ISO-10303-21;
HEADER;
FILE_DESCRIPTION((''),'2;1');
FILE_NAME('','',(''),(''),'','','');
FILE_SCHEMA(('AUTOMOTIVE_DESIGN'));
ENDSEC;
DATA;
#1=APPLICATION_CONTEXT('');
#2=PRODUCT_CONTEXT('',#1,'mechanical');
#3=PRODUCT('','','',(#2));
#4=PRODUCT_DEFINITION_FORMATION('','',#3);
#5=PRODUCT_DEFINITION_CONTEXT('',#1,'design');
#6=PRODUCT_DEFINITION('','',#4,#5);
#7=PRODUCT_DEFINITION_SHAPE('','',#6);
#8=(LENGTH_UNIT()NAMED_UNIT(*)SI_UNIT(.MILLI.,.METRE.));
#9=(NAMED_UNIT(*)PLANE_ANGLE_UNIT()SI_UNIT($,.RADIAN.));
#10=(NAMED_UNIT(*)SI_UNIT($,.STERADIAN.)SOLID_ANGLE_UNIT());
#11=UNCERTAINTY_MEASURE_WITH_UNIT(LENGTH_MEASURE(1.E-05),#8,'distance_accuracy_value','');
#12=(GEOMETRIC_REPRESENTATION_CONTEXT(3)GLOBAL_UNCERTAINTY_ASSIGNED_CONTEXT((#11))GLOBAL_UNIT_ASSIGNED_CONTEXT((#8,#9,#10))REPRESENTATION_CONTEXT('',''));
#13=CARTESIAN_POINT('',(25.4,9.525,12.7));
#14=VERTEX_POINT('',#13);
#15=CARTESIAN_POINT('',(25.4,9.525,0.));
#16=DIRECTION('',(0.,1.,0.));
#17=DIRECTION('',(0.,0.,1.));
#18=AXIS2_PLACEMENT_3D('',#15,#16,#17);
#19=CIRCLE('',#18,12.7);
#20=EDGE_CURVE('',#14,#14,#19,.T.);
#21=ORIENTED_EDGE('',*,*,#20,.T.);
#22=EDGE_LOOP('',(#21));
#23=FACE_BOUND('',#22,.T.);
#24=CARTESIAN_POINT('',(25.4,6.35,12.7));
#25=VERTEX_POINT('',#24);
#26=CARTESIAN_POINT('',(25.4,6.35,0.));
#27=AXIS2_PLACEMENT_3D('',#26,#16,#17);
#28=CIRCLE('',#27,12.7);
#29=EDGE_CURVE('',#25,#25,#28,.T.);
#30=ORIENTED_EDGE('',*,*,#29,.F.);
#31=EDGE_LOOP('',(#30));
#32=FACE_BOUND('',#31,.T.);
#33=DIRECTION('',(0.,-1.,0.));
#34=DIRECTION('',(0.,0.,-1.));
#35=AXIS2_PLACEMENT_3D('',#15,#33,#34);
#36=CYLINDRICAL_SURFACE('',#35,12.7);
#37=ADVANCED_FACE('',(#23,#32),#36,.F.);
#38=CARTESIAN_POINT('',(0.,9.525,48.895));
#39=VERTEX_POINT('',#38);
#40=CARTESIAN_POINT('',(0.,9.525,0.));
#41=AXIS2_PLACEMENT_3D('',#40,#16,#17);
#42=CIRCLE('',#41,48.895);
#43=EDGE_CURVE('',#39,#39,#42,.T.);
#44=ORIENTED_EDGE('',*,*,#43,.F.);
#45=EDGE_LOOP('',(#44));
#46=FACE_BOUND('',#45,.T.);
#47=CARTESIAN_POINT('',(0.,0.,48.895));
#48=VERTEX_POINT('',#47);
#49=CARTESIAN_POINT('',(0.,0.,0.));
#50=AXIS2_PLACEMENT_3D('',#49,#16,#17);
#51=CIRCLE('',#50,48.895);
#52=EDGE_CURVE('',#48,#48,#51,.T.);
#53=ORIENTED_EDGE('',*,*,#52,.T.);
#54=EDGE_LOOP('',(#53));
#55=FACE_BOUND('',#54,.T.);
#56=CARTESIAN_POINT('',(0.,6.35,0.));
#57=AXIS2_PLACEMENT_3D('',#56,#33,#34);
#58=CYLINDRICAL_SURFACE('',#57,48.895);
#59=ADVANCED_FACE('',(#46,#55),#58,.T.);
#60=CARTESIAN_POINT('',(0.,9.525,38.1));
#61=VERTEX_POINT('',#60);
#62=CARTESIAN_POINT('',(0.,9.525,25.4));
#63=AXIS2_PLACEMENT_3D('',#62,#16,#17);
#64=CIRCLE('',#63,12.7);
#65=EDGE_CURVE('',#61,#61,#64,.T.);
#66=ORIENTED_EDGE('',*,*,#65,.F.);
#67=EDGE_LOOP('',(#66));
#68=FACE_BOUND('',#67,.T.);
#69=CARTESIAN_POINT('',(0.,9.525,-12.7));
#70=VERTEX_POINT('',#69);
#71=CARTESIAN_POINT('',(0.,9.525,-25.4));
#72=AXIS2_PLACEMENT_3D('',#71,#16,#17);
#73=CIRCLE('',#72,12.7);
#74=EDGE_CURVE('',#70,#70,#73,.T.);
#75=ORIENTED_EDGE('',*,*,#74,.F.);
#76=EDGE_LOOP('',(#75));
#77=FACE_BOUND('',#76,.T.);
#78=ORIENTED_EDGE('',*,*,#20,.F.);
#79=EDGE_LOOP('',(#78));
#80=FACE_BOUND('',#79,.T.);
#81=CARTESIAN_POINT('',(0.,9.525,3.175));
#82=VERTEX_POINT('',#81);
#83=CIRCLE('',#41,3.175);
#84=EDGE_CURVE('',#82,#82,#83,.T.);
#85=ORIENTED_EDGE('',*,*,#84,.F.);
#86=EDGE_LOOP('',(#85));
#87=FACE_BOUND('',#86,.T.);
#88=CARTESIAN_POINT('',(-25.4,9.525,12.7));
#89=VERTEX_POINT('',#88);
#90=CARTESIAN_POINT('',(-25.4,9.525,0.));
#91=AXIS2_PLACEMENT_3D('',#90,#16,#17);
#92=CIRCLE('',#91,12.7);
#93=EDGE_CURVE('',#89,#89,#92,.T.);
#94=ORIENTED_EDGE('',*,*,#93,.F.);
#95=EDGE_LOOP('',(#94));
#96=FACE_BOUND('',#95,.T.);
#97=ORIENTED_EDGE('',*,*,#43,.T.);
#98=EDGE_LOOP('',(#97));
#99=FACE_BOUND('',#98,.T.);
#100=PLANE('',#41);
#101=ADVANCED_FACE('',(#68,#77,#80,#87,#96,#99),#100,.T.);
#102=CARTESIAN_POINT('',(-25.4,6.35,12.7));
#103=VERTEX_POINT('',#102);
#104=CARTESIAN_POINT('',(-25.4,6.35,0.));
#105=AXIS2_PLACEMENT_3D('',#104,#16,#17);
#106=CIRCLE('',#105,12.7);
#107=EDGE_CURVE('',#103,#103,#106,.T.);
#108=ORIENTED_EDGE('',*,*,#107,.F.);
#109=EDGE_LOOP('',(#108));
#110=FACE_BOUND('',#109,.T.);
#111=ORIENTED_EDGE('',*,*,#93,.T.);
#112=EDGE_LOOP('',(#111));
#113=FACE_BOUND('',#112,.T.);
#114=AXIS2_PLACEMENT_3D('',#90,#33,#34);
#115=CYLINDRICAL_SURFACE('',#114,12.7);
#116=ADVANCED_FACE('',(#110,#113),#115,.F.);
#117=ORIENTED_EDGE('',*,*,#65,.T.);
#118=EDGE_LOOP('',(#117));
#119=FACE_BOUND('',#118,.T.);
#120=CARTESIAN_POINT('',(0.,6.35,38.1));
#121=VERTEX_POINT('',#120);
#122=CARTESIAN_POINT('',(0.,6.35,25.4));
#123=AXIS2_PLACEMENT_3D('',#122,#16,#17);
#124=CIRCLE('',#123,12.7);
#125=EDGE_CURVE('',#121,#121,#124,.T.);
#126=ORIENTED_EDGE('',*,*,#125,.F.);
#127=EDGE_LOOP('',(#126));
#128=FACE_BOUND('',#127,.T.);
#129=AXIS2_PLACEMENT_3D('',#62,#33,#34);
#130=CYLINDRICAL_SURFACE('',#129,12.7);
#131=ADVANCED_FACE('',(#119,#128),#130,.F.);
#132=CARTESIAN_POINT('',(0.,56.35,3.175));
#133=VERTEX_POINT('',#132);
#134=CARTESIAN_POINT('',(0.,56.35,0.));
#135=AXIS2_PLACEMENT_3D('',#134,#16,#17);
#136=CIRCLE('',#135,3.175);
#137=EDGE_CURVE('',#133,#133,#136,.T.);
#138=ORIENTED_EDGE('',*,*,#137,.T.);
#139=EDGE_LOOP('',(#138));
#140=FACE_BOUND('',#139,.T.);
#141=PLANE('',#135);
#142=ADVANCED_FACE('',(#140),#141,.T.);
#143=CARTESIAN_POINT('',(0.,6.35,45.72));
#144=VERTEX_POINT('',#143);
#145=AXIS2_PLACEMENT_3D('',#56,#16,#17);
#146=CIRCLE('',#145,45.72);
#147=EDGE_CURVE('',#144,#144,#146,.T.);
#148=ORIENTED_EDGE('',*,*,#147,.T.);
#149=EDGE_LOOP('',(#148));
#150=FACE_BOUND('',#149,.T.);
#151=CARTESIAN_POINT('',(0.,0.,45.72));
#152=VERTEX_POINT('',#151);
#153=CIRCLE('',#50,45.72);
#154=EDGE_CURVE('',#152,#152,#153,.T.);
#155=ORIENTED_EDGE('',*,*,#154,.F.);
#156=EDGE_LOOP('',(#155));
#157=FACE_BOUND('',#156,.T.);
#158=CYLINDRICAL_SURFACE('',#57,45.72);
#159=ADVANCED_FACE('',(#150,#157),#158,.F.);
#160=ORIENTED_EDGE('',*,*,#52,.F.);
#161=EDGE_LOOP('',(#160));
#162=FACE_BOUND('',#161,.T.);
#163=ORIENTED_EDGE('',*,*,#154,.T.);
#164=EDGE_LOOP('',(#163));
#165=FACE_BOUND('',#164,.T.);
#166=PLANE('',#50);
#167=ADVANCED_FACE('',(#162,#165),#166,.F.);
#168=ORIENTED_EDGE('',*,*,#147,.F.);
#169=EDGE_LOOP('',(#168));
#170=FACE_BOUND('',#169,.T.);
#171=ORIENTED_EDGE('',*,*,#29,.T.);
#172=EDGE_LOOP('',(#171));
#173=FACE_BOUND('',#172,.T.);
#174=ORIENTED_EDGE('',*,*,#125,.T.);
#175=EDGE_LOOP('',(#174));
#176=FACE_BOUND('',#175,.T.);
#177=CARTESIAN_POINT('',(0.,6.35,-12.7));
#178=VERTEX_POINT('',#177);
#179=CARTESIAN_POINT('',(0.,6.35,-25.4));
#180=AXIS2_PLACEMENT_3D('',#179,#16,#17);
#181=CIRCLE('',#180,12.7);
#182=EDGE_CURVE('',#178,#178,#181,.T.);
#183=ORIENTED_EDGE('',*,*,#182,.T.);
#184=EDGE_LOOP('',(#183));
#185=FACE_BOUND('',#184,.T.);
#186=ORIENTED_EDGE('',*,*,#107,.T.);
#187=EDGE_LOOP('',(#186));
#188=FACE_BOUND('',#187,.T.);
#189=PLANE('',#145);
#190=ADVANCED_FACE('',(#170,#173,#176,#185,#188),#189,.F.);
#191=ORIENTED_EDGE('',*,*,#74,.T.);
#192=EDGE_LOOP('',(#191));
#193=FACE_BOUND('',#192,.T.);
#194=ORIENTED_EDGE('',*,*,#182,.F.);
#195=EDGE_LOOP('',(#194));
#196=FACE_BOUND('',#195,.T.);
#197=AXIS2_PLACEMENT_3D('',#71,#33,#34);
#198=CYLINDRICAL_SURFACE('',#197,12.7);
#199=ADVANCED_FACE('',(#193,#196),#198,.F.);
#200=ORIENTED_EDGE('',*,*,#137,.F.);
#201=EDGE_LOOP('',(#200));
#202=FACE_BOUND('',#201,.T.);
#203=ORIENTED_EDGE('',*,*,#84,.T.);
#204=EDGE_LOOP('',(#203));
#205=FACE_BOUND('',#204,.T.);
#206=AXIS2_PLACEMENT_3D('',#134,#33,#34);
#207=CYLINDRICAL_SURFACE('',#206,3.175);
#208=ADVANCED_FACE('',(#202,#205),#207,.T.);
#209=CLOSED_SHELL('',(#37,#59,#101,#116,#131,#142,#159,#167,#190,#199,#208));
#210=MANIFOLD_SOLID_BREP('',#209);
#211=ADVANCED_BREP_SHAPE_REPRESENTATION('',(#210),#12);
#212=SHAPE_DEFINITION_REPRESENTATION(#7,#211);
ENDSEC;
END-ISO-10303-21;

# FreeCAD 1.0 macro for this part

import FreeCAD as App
import Part
import Sketcher
from FreeCAD import Vector
Q = App.Units.Quantity

doc = App.newDocument("Part")
params = doc.addObject("Spreadsheet::Sheet", "Params")
for row, (alias, value) in enumerate([
    ("sketch1_diameter", "3.6 in"),
    ("sketch1_diameter2", "3.85 in"),
    ("pad1_length", "0.25 in"),
    ("sketch2_diameter", "1 in"),
    ("sketch2_diameter2", "3.85 in"),
    ("pad2_length", "0.125 in"),
    ("sketch3_diameter", "0.25 in"),
    ("pad3_length", "46.825 mm"),
], start=1):
    params.set(f"A{row}", alias)
    params.set(f"B{row}", "=" + value)
    params.setAlias(f"B{row}", alias)

body = doc.addObject("PartDesign::Body", "Body")

sketch1 = body.newObject("Sketcher::SketchObject", "Sketch")
sketch1.AttachmentSupport = (doc.getObject("XZ_Plane"), [""])
sketch1.MapMode = "FlatFace"
sketch1.addGeometry([
    Part.Circle(Vector(0, 0, 0), Vector(0, 0, 1), 49),
    Part.Circle(Vector(0, 0, 0), Vector(0, 0, 1), 46),
], False)
sketch1.addConstraint([
    Sketcher.Constraint("Coincident", 0, 3, -1, 1),
    Sketcher.Constraint("Coincident", 1, 3, -1, 1),
    Sketcher.Constraint("Diameter", 1, Q("3.6 in")),
    Sketcher.Constraint("Diameter", 0, Q("3.85 in")),
])
sketch1.setExpression("Constraints[2]", "Params.sketch1_diameter")
sketch1.setExpression("Constraints[3]", "Params.sketch1_diameter2")
pad1 = body.newObject("PartDesign::Pad", "Pad")
pad1.Profile = sketch1
pad1.setExpression("Length", "Params.pad1_length")
pad1.Reversed = True

sketch2 = body.newObject("Sketcher::SketchObject", "Sketch001")
sketch2.AttachmentSupport = (doc.getObject("XZ_Plane"), [""])
sketch2.MapMode = "FlatFace"
sketch2.AttachmentOffset = App.Placement(Vector(0, 0, -0.25 * 25.4), App.Rotation())
sketch2.addGeometry([
    Part.Circle(Vector(0, 0, 0), Vector(0, 0, 1), 49),
    Part.Circle(Vector(-25, 0, 0), Vector(0, 0, 1), 13),
    Part.Circle(Vector(0, -25, 0), Vector(0, 0, 1), 13),
    Part.Circle(Vector(0, 25, 0), Vector(0, 0, 1), 13),
    Part.Circle(Vector(25, 0, 0), Vector(0, 0, 1), 13),
], False)
sketch2.addConstraint([
    Sketcher.Constraint("Coincident", 0, 3, -1, 1),
    Sketcher.Constraint("Equal", 1, 2),
    Sketcher.Constraint("Equal", 2, 3),
    Sketcher.Constraint("Equal", 3, 4),
    Sketcher.Constraint("Symmetric", 2, 3, 3, 3, -1, 1),
    Sketcher.Constraint("Symmetric", 1, 3, 4, 3, -1, 1),
    Sketcher.Constraint("PointOnObject", 1, 3, -1),
    Sketcher.Constraint("PointOnObject", 2, 3, -2),
    Sketcher.Constraint("Diameter", 1, Q("1 in")),
    Sketcher.Constraint("Diameter", 0, Q("3.85 in")),
    Sketcher.Constraint("DistanceX", 1, 3, -1, 1, Q("1 in")),
    Sketcher.Constraint("DistanceY", 2, 3, -1, 1, Q("1 in")),
])
sketch2.setExpression("Constraints[8]", "Params.sketch2_diameter")
sketch2.setExpression("Constraints[9]", "Params.sketch2_diameter2")
pad2 = body.newObject("PartDesign::Pad", "Pad001")
pad2.Profile = sketch2
pad2.setExpression("Length", "Params.pad2_length")
pad2.Reversed = True

sketch3 = body.newObject("Sketcher::SketchObject", "Sketch002")
sketch3.AttachmentSupport = (doc.getObject("XZ_Plane"), [""])
sketch3.MapMode = "FlatFace"
sketch3.AttachmentOffset = App.Placement(Vector(0, 0, -0.375 * 25.4), App.Rotation())
sketch3.addGeometry(Part.Circle(Vector(0, 0, 0), Vector(0, 0, 1), 3.2), False)
sketch3.addConstraint([
    Sketcher.Constraint("Coincident", 0, 3, -1, 1),
    Sketcher.Constraint("Diameter", 0, Q("0.25 in")),
])
sketch3.setExpression("Constraints[1]", "Params.sketch3_diameter")
pad3 = body.newObject("PartDesign::Pad", "Pad002")
pad3.Profile = sketch3
pad3.setExpression("Length", "Params.pad3_length")
pad3.Reversed = True

doc.recompute()
